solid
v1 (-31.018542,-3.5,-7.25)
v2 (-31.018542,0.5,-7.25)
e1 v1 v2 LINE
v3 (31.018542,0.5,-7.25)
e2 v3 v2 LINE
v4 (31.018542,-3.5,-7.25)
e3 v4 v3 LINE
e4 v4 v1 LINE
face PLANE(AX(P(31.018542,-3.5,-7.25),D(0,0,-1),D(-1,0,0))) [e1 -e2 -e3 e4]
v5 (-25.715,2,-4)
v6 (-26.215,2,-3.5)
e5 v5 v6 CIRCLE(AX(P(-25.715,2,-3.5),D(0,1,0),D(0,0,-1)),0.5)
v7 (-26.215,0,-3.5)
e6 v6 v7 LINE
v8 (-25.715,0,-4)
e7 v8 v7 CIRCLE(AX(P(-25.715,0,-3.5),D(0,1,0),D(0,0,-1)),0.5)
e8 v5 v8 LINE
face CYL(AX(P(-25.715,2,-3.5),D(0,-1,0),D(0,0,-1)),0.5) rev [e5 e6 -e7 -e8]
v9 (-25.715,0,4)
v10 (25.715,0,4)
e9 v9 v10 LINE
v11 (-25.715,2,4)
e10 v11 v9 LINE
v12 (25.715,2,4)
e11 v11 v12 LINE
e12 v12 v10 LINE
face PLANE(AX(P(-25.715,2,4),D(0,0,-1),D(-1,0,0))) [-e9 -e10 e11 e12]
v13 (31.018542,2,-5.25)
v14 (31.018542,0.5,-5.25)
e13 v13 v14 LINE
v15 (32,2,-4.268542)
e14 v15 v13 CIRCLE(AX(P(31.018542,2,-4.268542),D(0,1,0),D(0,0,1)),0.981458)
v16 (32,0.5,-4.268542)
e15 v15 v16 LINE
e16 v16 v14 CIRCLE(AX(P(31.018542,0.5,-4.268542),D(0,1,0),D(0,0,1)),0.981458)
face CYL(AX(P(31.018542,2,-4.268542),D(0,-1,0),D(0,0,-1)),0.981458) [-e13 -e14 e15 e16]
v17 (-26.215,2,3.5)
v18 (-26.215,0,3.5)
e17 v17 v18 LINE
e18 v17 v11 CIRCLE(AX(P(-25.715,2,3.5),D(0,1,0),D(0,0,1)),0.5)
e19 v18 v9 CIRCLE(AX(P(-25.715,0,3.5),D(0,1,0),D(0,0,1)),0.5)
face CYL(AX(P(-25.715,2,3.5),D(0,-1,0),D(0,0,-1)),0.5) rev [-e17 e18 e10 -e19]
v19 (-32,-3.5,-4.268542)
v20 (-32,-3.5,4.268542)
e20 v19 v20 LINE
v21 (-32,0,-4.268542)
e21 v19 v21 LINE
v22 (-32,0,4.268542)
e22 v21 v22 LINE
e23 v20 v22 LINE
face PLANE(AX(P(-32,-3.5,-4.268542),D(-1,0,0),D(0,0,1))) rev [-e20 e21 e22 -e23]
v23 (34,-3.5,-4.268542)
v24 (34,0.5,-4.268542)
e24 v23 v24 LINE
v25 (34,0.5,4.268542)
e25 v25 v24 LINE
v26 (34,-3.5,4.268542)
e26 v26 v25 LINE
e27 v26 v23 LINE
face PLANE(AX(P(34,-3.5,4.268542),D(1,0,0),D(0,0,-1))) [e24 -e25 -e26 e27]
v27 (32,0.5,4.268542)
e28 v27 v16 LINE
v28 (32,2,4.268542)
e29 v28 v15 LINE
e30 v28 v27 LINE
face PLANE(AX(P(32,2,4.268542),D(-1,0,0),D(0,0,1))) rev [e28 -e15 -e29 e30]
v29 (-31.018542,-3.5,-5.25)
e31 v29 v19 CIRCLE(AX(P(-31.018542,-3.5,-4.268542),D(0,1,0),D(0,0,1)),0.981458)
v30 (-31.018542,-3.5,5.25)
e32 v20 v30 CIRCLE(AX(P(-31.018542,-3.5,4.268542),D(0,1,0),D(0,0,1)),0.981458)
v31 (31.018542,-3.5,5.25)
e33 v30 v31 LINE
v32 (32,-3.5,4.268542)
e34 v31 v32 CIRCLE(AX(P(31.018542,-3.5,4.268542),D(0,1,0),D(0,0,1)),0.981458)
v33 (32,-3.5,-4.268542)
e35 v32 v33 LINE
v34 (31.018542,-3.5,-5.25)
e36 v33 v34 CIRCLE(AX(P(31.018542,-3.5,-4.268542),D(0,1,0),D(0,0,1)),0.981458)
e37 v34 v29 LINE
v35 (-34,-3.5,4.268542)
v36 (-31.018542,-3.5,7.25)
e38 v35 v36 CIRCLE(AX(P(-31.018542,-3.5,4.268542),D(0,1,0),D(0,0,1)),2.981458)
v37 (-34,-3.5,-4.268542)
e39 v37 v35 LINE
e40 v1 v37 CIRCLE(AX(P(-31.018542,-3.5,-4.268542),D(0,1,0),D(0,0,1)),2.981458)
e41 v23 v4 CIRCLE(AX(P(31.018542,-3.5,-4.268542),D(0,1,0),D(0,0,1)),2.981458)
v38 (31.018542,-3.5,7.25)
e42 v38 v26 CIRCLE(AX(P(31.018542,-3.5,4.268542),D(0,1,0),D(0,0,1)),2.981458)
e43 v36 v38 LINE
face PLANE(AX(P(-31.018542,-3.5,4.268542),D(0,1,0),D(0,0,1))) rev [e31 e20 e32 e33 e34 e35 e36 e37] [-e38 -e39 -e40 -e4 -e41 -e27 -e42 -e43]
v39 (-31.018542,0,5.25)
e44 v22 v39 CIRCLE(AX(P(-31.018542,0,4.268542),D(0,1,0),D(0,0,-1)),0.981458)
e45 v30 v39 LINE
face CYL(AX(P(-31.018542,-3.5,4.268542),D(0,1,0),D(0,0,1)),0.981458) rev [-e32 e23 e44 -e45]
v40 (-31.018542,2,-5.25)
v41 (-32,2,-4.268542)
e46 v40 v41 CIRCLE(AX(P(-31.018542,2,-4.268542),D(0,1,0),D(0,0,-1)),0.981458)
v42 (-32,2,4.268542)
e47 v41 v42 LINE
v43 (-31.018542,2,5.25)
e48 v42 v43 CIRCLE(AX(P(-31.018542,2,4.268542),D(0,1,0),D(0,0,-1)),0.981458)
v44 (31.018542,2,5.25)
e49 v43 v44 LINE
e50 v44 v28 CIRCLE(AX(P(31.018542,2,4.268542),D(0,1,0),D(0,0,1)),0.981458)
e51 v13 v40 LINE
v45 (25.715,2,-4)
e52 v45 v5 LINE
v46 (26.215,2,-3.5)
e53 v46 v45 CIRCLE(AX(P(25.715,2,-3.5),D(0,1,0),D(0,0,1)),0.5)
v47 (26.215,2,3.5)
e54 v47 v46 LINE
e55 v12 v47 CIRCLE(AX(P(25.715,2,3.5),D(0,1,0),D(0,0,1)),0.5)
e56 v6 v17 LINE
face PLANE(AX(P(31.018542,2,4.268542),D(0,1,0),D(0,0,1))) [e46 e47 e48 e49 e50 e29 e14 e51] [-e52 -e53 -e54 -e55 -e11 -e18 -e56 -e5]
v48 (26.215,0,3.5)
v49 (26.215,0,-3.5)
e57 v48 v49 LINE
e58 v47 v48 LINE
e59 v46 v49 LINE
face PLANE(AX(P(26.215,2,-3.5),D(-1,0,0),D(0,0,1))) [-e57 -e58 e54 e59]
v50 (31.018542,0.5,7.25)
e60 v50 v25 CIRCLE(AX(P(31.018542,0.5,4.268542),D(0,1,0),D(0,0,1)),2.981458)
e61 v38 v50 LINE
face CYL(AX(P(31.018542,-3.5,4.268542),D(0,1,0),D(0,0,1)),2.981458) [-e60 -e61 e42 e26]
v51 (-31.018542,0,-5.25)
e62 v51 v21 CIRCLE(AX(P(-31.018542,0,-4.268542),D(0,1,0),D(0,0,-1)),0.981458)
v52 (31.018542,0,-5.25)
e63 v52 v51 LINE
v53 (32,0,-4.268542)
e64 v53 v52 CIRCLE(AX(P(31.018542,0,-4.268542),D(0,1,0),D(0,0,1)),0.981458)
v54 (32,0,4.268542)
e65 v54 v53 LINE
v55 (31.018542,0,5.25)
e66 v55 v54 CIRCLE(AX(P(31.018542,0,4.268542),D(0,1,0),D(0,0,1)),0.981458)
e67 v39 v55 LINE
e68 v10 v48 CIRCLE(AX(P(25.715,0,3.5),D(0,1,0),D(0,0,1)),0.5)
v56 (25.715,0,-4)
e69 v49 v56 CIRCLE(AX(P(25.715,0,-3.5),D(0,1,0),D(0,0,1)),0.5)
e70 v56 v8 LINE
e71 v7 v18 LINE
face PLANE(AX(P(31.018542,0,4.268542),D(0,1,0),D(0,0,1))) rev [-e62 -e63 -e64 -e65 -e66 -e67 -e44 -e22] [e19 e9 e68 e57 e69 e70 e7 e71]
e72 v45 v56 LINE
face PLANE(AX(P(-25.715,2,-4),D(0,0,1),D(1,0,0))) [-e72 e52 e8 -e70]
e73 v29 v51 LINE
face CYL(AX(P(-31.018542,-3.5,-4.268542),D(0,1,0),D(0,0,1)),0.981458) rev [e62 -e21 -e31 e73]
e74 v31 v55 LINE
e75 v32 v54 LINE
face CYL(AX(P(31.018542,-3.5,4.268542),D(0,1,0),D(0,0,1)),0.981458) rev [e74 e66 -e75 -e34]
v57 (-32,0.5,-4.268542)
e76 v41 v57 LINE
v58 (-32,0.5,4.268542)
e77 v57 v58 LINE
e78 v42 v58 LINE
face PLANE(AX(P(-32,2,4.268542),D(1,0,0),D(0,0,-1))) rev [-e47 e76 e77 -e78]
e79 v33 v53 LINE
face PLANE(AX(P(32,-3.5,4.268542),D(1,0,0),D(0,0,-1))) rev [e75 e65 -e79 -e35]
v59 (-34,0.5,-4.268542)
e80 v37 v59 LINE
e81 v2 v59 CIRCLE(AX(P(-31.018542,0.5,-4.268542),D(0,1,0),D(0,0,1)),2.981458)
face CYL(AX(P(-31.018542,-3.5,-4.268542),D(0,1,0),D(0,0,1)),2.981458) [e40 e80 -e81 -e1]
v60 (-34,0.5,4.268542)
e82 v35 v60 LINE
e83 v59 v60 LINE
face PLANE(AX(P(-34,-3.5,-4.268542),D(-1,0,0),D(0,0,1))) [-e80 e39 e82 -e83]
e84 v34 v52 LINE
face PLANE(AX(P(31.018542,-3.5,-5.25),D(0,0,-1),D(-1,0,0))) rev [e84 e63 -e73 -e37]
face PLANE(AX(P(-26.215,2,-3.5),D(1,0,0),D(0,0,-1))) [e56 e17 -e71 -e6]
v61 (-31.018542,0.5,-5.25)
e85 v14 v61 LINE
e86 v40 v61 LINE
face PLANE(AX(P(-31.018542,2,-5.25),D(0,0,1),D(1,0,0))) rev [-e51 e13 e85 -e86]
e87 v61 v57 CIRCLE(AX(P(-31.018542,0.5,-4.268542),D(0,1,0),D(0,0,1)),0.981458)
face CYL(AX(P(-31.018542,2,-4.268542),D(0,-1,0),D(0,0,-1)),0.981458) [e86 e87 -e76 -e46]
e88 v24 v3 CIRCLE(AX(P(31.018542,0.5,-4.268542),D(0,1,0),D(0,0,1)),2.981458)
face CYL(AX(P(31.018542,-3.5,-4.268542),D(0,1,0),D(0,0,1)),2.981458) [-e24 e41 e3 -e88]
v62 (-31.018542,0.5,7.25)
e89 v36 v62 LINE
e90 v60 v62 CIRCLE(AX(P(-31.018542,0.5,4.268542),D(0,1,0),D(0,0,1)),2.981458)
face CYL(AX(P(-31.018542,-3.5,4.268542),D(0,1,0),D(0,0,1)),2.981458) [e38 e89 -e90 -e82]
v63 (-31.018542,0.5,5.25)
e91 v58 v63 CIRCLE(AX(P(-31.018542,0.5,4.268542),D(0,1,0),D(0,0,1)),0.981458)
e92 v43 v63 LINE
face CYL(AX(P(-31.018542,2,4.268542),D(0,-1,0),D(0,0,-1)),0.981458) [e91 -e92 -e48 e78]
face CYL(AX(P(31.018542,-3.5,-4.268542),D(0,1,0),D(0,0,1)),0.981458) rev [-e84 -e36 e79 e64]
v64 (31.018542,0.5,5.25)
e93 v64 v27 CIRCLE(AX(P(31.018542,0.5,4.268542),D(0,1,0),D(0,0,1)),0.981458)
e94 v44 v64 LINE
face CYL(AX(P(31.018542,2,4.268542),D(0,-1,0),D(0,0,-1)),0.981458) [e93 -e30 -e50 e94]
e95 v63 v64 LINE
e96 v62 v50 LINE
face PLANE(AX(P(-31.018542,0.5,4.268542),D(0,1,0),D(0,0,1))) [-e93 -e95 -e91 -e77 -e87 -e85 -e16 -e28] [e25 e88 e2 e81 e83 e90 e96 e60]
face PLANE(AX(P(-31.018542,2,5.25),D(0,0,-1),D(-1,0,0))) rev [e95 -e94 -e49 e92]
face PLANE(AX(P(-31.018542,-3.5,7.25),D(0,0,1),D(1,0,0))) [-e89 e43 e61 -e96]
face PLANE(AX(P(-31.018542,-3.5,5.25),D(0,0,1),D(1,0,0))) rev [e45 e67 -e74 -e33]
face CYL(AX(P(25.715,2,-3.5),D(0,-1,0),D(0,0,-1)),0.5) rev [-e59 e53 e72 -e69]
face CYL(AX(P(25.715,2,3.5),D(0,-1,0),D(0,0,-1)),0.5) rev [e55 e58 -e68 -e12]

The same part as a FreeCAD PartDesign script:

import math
import FreeCAD as App
import Part
import Sketcher

V = App.Vector

doc = App.newDocument("Part")
body = doc.addObject("PartDesign::Body", "Body")

# Sketch on XZ plane
sketch1 = doc.addObject("Sketcher::SketchObject", "Sketch")
body.addObject(sketch1)
sketch1.AttachmentSupport = (doc.XZ_Plane, [""])
sketch1.MapMode = "FlatFace"
sketch1.addGeometry(Part.LineSegment(V(-31.018542, 5.25, 0), V(31.018542, 5.25, 0)), False)
sketch1.addGeometry(Part.ArcOfCircle(Part.Circle(V(31.018542, 4.268542, 0), V(0, 0, 1), 0.981458), math.radians(0), math.radians(90)), False)
sketch1.addGeometry(Part.LineSegment(V(32, 4.268542, 0), V(32, -4.268542, 0)), False)
sketch1.addGeometry(Part.ArcOfCircle(Part.Circle(V(31.018542, -4.268542, 0), V(0, 0, 1), 0.981458), math.radians(-90), math.radians(0)), False)
sketch1.addGeometry(Part.LineSegment(V(31.018542, -5.25, 0), V(-31.018542, -5.25, 0)), False)
sketch1.addGeometry(Part.ArcOfCircle(Part.Circle(V(-31.018542, -4.268542, 0), V(0, 0, 1), 0.981458), math.radians(180), math.radians(270)), False)
sketch1.addGeometry(Part.LineSegment(V(-32, -4.268542, 0), V(-32, 4.268542, 0)), False)
sketch1.addGeometry(Part.ArcOfCircle(Part.Circle(V(-31.018542, 4.268542, 0), V(0, 0, 1), 0.981458), math.radians(90), math.radians(180)), False)
sketch1.addGeometry(Part.LineSegment(V(-26.215, 3.5, 0), V(-26.215, -3.5, 0)), False)
sketch1.addGeometry(Part.ArcOfCircle(Part.Circle(V(-25.715, -3.5, 0), V(0, 0, 1), 0.5), math.radians(180), math.radians(270)), False)
sketch1.addGeometry(Part.LineSegment(V(-25.715, -4, 0), V(25.715, -4, 0)), False)
sketch1.addGeometry(Part.ArcOfCircle(Part.Circle(V(25.715, -3.5, 0), V(0, 0, 1), 0.5), math.radians(-90), math.radians(0)), False)
sketch1.addGeometry(Part.LineSegment(V(26.215, -3.5, 0), V(26.215, 3.5, 0)), False)
sketch1.addGeometry(Part.ArcOfCircle(Part.Circle(V(25.715, 3.5, 0), V(0, 0, 1), 0.5), math.radians(0), math.radians(90)), False)
sketch1.addGeometry(Part.LineSegment(V(25.715, 4, 0), V(-25.715, 4, 0)), False)
sketch1.addGeometry(Part.ArcOfCircle(Part.Circle(V(-25.715, 3.5, 0), V(0, 0, 1), 0.5), math.radians(90), math.radians(180)), False)
sketch1.addConstraint(Sketcher.Constraint("Tangent", 0, 2, 1, 2))
sketch1.addConstraint(Sketcher.Constraint("Tangent", 1, 1, 2, 1))
sketch1.addConstraint(Sketcher.Constraint("Tangent", 2, 2, 3, 2))
sketch1.addConstraint(Sketcher.Constraint("Tangent", 3, 1, 4, 1))
sketch1.addConstraint(Sketcher.Constraint("Tangent", 4, 2, 5, 2))
sketch1.addConstraint(Sketcher.Constraint("Tangent", 5, 1, 6, 1))
sketch1.addConstraint(Sketcher.Constraint("Tangent", 6, 2, 7, 2))
sketch1.addConstraint(Sketcher.Constraint("Tangent", 7, 1, 0, 1))
sketch1.addConstraint(Sketcher.Constraint("Tangent", 8, 2, 9, 1))
sketch1.addConstraint(Sketcher.Constraint("Tangent", 9, 2, 10, 1))
sketch1.addConstraint(Sketcher.Constraint("Tangent", 10, 2, 11, 1))
sketch1.addConstraint(Sketcher.Constraint("Tangent", 11, 2, 12, 1))
sketch1.addConstraint(Sketcher.Constraint("Tangent", 12, 2, 13, 1))
sketch1.addConstraint(Sketcher.Constraint("Tangent", 13, 2, 14, 1))
sketch1.addConstraint(Sketcher.Constraint("Tangent", 14, 2, 15, 1))
sketch1.addConstraint(Sketcher.Constraint("Tangent", 15, 2, 8, 1))
sketch1.addConstraint(Sketcher.Constraint("Horizontal", 0))
sketch1.addConstraint(Sketcher.Constraint("Vertical", 2))
sketch1.addConstraint(Sketcher.Constraint("Horizontal", 4))
sketch1.addConstraint(Sketcher.Constraint("Vertical", 6))
sketch1.addConstraint(Sketcher.Constraint("Vertical", 8))
sketch1.addConstraint(Sketcher.Constraint("Horizontal", 10))
sketch1.addConstraint(Sketcher.Constraint("Vertical", 12))
sketch1.addConstraint(Sketcher.Constraint("Horizontal", 14))
sketch1.addConstraint(Sketcher.Constraint("Equal", 1, 3))
sketch1.addConstraint(Sketcher.Constraint("Equal", 3, 5))
sketch1.addConstraint(Sketcher.Constraint("Equal", 5, 7))
sketch1.addConstraint(Sketcher.Constraint("Equal", 9, 11))
sketch1.addConstraint(Sketcher.Constraint("Equal", 11, 13))
sketch1.addConstraint(Sketcher.Constraint("Equal", 13, 15))
sketch1.addConstraint(Sketcher.Constraint("Symmetric", 1, 3, 5, 3, -1, 1))
sketch1.addConstraint(Sketcher.Constraint("Symmetric", 9, 3, 13, 3, -1, 1))
sketch1.addConstraint(Sketcher.Constraint("Radius", 9, 0.5))
sketch1.addConstraint(Sketcher.Constraint("DistanceY", 8, 2, 8, 1, 7.000001))
sketch1.addConstraint(Sketcher.Constraint("DistanceX", -1, 1, 1, 1, 32.0))
sketch1.addConstraint(Sketcher.Constraint("DistanceX", 10, 1, 10, 2, 51.43))
sketch1.addConstraint(Sketcher.Constraint("DistanceY", -1, 1, 0, 2, 5.25))
sketch1.addConstraint(Sketcher.Constraint("Radius", 1, 0.981458))
pad1 = doc.addObject("PartDesign::Pad", "Pad")
body.addObject(pad1)
pad1.Profile = sketch1
pad1.Length = 2
pad1.Reversed = True

# Sketch on XZ plane
sketch2 = doc.addObject("Sketcher::SketchObject", "Sketch001")
body.addObject(sketch2)
sketch2.AttachmentSupport = (doc.XZ_Plane, [""])
sketch2.MapMode = "FlatFace"
sketch2.AttachmentOffset = App.Placement(V(0, 0, -0.5), App.Rotation())
sketch2.addGeometry(Part.LineSegment(V(-31.018542, 7.25, 0), V(31.018542, 7.25, 0)), False)
sketch2.addGeometry(Part.ArcOfCircle(Part.Circle(V(31.018542, 4.268542, 0), V(0, 0, 1), 2.981458), math.radians(0), math.radians(90)), False)
sketch2.addGeometry(Part.LineSegment(V(34, 4.268542, 0), V(34, -4.268542, 0)), False)
sketch2.addGeometry(Part.ArcOfCircle(Part.Circle(V(31.018542, -4.268542, 0), V(0, 0, 1), 2.981458), math.radians(-90), math.radians(0)), False)
sketch2.addGeometry(Part.LineSegment(V(31.018542, -7.25, 0), V(-31.018542, -7.25, 0)), False)
sketch2.addGeometry(Part.ArcOfCircle(Part.Circle(V(-31.018542, -4.268542, 0), V(0, 0, 1), 2.981458), math.radians(-180), math.radians(-90)), False)
sketch2.addGeometry(Part.LineSegment(V(-34, -4.268542, 0), V(-34, 4.268542, 0)), False)
sketch2.addGeometry(Part.ArcOfCircle(Part.Circle(V(-31.018542, 4.268542, 0), V(0, 0, 1), 2.981458), math.radians(90), math.radians(180)), False)
sketch2.addGeometry(Part.LineSegment(V(31.018542, 5.25, 0), V(-31.018542, 5.25, 0)), False)
sketch2.addGeometry(Part.ArcOfCircle(Part.Circle(V(-31.018542, 4.268542, 0), V(0, 0, 1), 0.981458), math.radians(90), math.radians(180)), False)
sketch2.addGeometry(Part.LineSegment(V(-32, 4.268542, 0), V(-32, -4.268542, 0)), False)
sketch2.addGeometry(Part.ArcOfCircle(Part.Circle(V(-31.018542, -4.268542, 0), V(0, 0, 1), 0.981458), math.radians(180), math.radians(270)), False)
sketch2.addGeometry(Part.LineSegment(V(-31.018542, -5.25, 0), V(31.018542, -5.25, 0)), False)
sketch2.addGeometry(Part.ArcOfCircle(Part.Circle(V(31.018542, -4.268542, 0), V(0, 0, 1), 0.981458), math.radians(-90), math.radians(0)), False)
sketch2.addGeometry(Part.LineSegment(V(32, -4.268542, 0), V(32, 4.268542, 0)), False)
sketch2.addGeometry(Part.ArcOfCircle(Part.Circle(V(31.018542, 4.268542, 0), V(0, 0, 1), 0.981458), math.radians(0), math.radians(90)), False)
sketch2.addConstraint(Sketcher.Constraint("Tangent", 0, 2, 1, 2))
sketch2.addConstraint(Sketcher.Constraint("Tangent", 1, 1, 2, 1))
sketch2.addConstraint(Sketcher.Constraint("Tangent", 2, 2, 3, 2))
sketch2.addConstraint(Sketcher.Constraint("Tangent", 3, 1, 4, 1))
sketch2.addConstraint(Sketcher.Constraint("Tangent", 4, 2, 5, 2))
sketch2.addConstraint(Sketcher.Constraint("Tangent", 5, 1, 6, 1))
sketch2.addConstraint(Sketcher.Constraint("Tangent", 6, 2, 7, 2))
sketch2.addConstraint(Sketcher.Constraint("Tangent", 7, 1, 0, 1))
sketch2.addConstraint(Sketcher.Constraint("Tangent", 8, 2, 9, 1))
sketch2.addConstraint(Sketcher.Constraint("Tangent", 9, 2, 10, 1))
sketch2.addConstraint(Sketcher.Constraint("Tangent", 10, 2, 11, 1))
sketch2.addConstraint(Sketcher.Constraint("Tangent", 11, 2, 12, 1))
sketch2.addConstraint(Sketcher.Constraint("Tangent", 12, 2, 13, 1))
sketch2.addConstraint(Sketcher.Constraint("Tangent", 13, 2, 14, 1))
sketch2.addConstraint(Sketcher.Constraint("Tangent", 14, 2, 15, 1))
sketch2.addConstraint(Sketcher.Constraint("Tangent", 15, 2, 8, 1))
sketch2.addConstraint(Sketcher.Constraint("Horizontal", 0))
sketch2.addConstraint(Sketcher.Constraint("Vertical", 2))
sketch2.addConstraint(Sketcher.Constraint("Horizontal", 4))
sketch2.addConstraint(Sketcher.Constraint("Vertical", 6))
sketch2.addConstraint(Sketcher.Constraint("Horizontal", 8))
sketch2.addConstraint(Sketcher.Constraint("Vertical", 10))
sketch2.addConstraint(Sketcher.Constraint("Horizontal", 12))
sketch2.addConstraint(Sketcher.Constraint("Vertical", 14))
sketch2.addConstraint(Sketcher.Constraint("Coincident", 9, 3, 7, 3))
sketch2.addConstraint(Sketcher.Constraint("Coincident", 11, 3, 5, 3))
sketch2.addConstraint(Sketcher.Constraint("Coincident", 13, 3, 3, 3))
sketch2.addConstraint(Sketcher.Constraint("Equal", 1, 3))
sketch2.addConstraint(Sketcher.Constraint("Equal", 3, 5))
sketch2.addConstraint(Sketcher.Constraint("Equal", 5, 7))
sketch2.addConstraint(Sketcher.Constraint("Equal", 13, 15))
sketch2.addConstraint(Sketcher.Constraint("Symmetric", 1, 3, 5, 3, -1, 1))
sketch2.addConstraint(Sketcher.Constraint("DistanceX", -1, 1, 1, 1, 34.0))
sketch2.addConstraint(Sketcher.Constraint("DistanceX", 9, 2, -1, 1, 32.0))
sketch2.addConstraint(Sketcher.Constraint("DistanceY", -1, 1, 0, 2, 7.25))
sketch2.addConstraint(Sketcher.Constraint("Radius", 1, 2.981458))
pad2 = doc.addObject("PartDesign::Pad", "Pad001")
body.addObject(pad2)
pad2.Profile = sketch2
pad2.Length = 4

doc.recompute()
